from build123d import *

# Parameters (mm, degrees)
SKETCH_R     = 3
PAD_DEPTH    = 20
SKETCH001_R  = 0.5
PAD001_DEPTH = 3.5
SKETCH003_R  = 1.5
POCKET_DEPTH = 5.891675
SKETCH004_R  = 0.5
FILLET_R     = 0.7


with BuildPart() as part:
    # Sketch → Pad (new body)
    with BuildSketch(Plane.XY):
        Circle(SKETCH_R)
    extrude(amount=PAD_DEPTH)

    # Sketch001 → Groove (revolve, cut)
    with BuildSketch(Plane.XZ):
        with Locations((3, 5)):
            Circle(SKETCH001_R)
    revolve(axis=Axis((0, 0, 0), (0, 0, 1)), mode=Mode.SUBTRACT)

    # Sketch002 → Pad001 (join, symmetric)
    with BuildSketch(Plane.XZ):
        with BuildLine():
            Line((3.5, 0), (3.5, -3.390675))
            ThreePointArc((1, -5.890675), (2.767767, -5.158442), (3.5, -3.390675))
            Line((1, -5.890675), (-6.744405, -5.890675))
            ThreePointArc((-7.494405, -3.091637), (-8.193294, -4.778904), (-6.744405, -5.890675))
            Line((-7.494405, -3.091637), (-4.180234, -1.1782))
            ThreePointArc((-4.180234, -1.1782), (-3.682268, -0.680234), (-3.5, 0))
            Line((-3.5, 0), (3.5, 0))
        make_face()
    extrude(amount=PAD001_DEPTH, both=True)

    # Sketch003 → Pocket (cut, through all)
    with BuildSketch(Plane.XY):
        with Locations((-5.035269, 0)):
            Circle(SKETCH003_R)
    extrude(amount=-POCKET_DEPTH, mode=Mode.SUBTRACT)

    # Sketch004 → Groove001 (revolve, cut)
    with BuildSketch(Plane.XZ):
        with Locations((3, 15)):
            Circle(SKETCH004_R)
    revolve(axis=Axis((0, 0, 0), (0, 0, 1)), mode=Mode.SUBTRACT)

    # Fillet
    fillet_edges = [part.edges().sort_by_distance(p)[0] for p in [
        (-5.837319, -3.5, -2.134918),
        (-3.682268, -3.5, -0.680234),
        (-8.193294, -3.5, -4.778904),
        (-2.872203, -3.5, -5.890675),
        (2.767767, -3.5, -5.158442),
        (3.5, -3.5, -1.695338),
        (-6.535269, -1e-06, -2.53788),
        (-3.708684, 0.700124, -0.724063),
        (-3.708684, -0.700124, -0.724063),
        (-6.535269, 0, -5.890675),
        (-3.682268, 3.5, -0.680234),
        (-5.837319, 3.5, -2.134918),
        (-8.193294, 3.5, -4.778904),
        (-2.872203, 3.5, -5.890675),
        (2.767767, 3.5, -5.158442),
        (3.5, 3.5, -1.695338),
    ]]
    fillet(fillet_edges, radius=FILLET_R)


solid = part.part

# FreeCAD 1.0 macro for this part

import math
import FreeCAD as App
import Part
import Sketcher
from FreeCAD import Vector
Q = App.Units.Quantity


def edges_at(feature, points):
    """Names of the edges that pass closest to the given points."""
    edges = feature.Shape.Edges
    near = lambda p: min(range(len(edges)), key=lambda i: edges[i].distToShape(Part.Vertex(*p))[0])
    return sorted({f"Edge{near(p) + 1}" for p in points})

doc = App.newDocument("Part")
body = doc.addObject("PartDesign::Body", "Body")

# Sketch on XY plane
sketch1 = doc.addObject("Sketcher::SketchObject", "Sketch")
body.addObject(sketch1)
sketch1.AttachmentSupport = (doc.XY_Plane, [""])
sketch1.MapMode = "FlatFace"
sketch1.addGeometry(Part.Circle(Vector(0, 0, 0), Vector(0, 0, 1), 3), False)
sketch1.addConstraint(Sketcher.Constraint("Coincident", 0, 3, -1, 1))
sketch1.addConstraint(Sketcher.Constraint("Diameter", 0, Q("6 mm")))
pad1 = doc.addObject("PartDesign::Pad", "Pad")
body.addObject(pad1)
pad1.Profile = sketch1
pad1.Length = 20

# Sketch on XZ plane
sketch2 = doc.addObject("Sketcher::SketchObject", "Sketch001")
body.addObject(sketch2)
sketch2.AttachmentSupport = (doc.XZ_Plane, [""])
sketch2.MapMode = "FlatFace"
sketch2.addGeometry(Part.Circle(Vector(3, 5, 0), Vector(0, 0, 1), 0.5), False)
sketch2.addConstraint(Sketcher.Constraint("Diameter", 0, Q("1 mm")))
sketch2.addConstraint(Sketcher.Constraint("DistanceX", -1, 1, 0, 3, Q("3 mm")))
sketch2.addConstraint(Sketcher.Constraint("DistanceY", -1, 1, 0, 3, Q("5 mm")))
groove = doc.addObject("PartDesign::Groove", "Groove")
body.addObject(groove)
groove.Profile = sketch2
groove.ReferenceAxis = (sketch2, ["V_Axis"])
groove.Angle = 360

# Sketch on XZ plane
sketch3 = doc.addObject("Sketcher::SketchObject", "Sketch002")
body.addObject(sketch3)
sketch3.AttachmentSupport = (doc.XZ_Plane, [""])
sketch3.MapMode = "FlatFace"
sketch3.addGeometry(Part.LineSegment(Vector(3.5, -3.390675, 0), Vector(3.5, 0, 0)), False)
sketch3.addGeometry(Part.LineSegment(Vector(3.5, 0, 0), Vector(-3.5, 0, 0)), False)
sketch3.addGeometry(Part.ArcOfCircle(Part.Circle(Vector(-4.860468, 0, 0), Vector(0, 0, 1), 1.360468), math.radians(-60.000009), math.radians(0.000015)), False)
sketch3.addGeometry(Part.LineSegment(Vector(-4.180234, -1.1782, 0), Vector(-7.494405, -3.091637, 0)), False)
sketch3.addGeometry(Part.ArcOfCircle(Part.Circle(Vector(-6.744406, -4.390675, 0), Vector(0, 0, 1), 1.5), math.radians(119.999981), math.radians(270.00002)), False)
sketch3.addGeometry(Part.LineSegment(Vector(-6.744405, -5.890675, 0), Vector(1, -5.890675, 0)), False)
sketch3.addGeometry(Part.ArcOfCircle(Part.Circle(Vector(1, -3.390675, 0), Vector(0, 0, 1), 2.5), math.radians(-90.000004), math.radians(0.000004)), False)
sketch3.addConstraint(Sketcher.Constraint("Coincident", 0, 2, 1, 1))
sketch3.addConstraint(Sketcher.Constraint("Coincident", 1, 2, 2, 2))
sketch3.addConstraint(Sketcher.Constraint("Tangent", 2, 1, 3, 1))
sketch3.addConstraint(Sketcher.Constraint("Tangent", 3, 2, 4, 1))
sketch3.addConstraint(Sketcher.Constraint("Tangent", 4, 2, 5, 1))
sketch3.addConstraint(Sketcher.Constraint("Tangent", 5, 2, 6, 1))
sketch3.addConstraint(Sketcher.Constraint("Tangent", 6, 2, 0, 1))
sketch3.addConstraint(Sketcher.Constraint("Vertical", 0))
sketch3.addConstraint(Sketcher.Constraint("Horizontal", 1))
sketch3.addConstraint(Sketcher.Constraint("Horizontal", 5))
sketch3.addConstraint(Sketcher.Constraint("Symmetric", 0, 2, 1, 2, -1, 1))
sketch3.addConstraint(Sketcher.Constraint("PointOnObject", 2, 3, -1))
sketch3.addConstraint(Sketcher.Constraint("Radius", 4, Q("1.5 mm")))
sketch3.addConstraint(Sketcher.Constraint("Radius", 6, Q("2.5 mm")))
sketch3.addConstraint(Sketcher.Constraint("DistanceX", 1, 2, 1, 1, Q("7 mm")))
sketch3.addConstraint(Sketcher.Constraint("Angle", 3, Q("-150.000007 deg")))
sketch3.addConstraint(Sketcher.Constraint("Radius", 2, Q("1.360468 mm")))
sketch3.addConstraint(Sketcher.Constraint("DistanceX", 5, 1, 5, 2, Q("7.744405 mm")))
pad2 = doc.addObject("PartDesign::Pad", "Pad001")
body.addObject(pad2)
pad2.Profile = sketch3
pad2.Length = 7
pad2.Midplane = True

# Sketch on XY plane
sketch4 = doc.addObject("Sketcher::SketchObject", "Sketch003")
body.addObject(sketch4)
sketch4.AttachmentSupport = (doc.XY_Plane, [""])
sketch4.MapMode = "FlatFace"
sketch4.addGeometry(Part.Circle(Vector(-5.035269, 0, 0), Vector(0, 0, 1), 1.5), False)
sketch4.addConstraint(Sketcher.Constraint("PointOnObject", 0, 3, -1))
sketch4.addConstraint(Sketcher.Constraint("Diameter", 0, Q("3 mm")))
sketch4.addConstraint(Sketcher.Constraint("DistanceX", 0, 3, -1, 1, Q("5.035269 mm")))
pocket1 = doc.addObject("PartDesign::Pocket", "Pocket")
body.addObject(pocket1)
pocket1.Profile = sketch4
pocket1.Type = "ThroughAll"

# Sketch on XZ plane
sketch5 = doc.addObject("Sketcher::SketchObject", "Sketch004")
body.addObject(sketch5)
sketch5.AttachmentSupport = (doc.XZ_Plane, [""])
sketch5.MapMode = "FlatFace"
sketch5.addGeometry(Part.Circle(Vector(3, 15, 0), Vector(0, 0, 1), 0.5), False)
sketch5.addConstraint(Sketcher.Constraint("Diameter", 0, Q("1 mm")))
sketch5.addConstraint(Sketcher.Constraint("DistanceX", -1, 1, 0, 3, Q("3 mm")))
sketch5.addConstraint(Sketcher.Constraint("DistanceY", -1, 1, 0, 3, Q("15 mm")))
groove2 = doc.addObject("PartDesign::Groove", "Groove001")
body.addObject(groove2)
groove2.Profile = sketch5
groove2.ReferenceAxis = (sketch5, ["V_Axis"])
groove2.Angle = 360
doc.recompute()

fillet = doc.addObject("PartDesign::Fillet", "Fillet")
body.addObject(fillet)
fillet.Base = (groove2, edges_at(groove2, [
    (-5.837, -3.5, -2.135),
    (-3.682, -3.5, -0.68),
    (-8.193, -3.5, -4.779),
    (-2.872, -3.5, -5.891),
    (2.768, -3.5, -5.158),
    (3.5, -3.5, -1.695),
    (-6.535, 0, -2.538),
    (-3.709, 0.7, -0.724),
    (-3.709, -0.7, -0.724),
    (-6.535, 0, -5.891),
    (-3.682, 3.5, -0.68),
    (-5.837, 3.5, -2.135),
    (-8.193, 3.5, -4.779),
    (-2.872, 3.5, -5.891),
    (2.768, 3.5, -5.158),
    (3.5, 3.5, -1.695),
]))
fillet.Radius = 0.7

doc.recompute()
